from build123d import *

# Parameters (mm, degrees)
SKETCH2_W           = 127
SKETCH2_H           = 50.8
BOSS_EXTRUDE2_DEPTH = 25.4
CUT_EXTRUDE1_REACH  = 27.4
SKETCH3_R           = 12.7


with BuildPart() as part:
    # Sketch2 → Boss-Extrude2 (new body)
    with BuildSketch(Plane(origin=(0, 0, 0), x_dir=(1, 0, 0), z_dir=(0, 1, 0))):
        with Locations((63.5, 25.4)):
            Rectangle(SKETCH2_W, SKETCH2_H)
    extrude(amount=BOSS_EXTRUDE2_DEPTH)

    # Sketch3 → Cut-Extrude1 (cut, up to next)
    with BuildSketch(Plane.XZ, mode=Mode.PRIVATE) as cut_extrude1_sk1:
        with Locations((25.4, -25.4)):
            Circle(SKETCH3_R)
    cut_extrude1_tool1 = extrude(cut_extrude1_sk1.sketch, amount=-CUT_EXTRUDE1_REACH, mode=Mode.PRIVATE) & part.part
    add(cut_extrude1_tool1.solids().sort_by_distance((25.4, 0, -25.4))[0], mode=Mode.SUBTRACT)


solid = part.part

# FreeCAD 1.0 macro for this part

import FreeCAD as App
import Part
import Sketcher
Q = App.Units.Quantity


def add_polygon(sketch, points):
    """Adds a closed chain of lines whose ends are joined by coincident constraints."""
    first, n = sketch.GeometryCount, len(points)
    for a, b in zip(points, points[1:] + points[:1]):
        sketch.addGeometry(Part.LineSegment(App.Vector(*a, 0), App.Vector(*b, 0)), False)
    for i in range(n):
        sketch.addConstraint(Sketcher.Constraint("Coincident", first + i, 2, first + (i + 1) % n, 1))

doc = App.newDocument("Part")
body = doc.addObject("PartDesign::Body", "Body")

# Sketch on XZ plane
sketch1 = doc.addObject("Sketcher::SketchObject", "Sketch")
body.addObject(sketch1)
sketch1.AttachmentSupport = (doc.XZ_Plane, [""])
sketch1.MapMode = "FlatFace"
add_polygon(sketch1, [(0, -51), (0, 0), (127, 0), (127, -51)])  # lines 0-3
sketch1.addConstraint(Sketcher.Constraint("Vertical", 0))
sketch1.addConstraint(Sketcher.Constraint("Horizontal", 1))
sketch1.addConstraint(Sketcher.Constraint("Vertical", 2))
sketch1.addConstraint(Sketcher.Constraint("Horizontal", 3))
sketch1.addConstraint(Sketcher.Constraint("Coincident", 0, 2, -1, 1))
sketch1.addConstraint(Sketcher.Constraint("DistanceX", 1, 1, 1, 2, Q("5 in")))
sketch1.addConstraint(Sketcher.Constraint("DistanceY", 0, 1, 0, 2, Q("2 in")))
pad1 = doc.addObject("PartDesign::Pad", "Pad")
body.addObject(pad1)
pad1.Profile = sketch1
pad1.Length = Q("1 in")
pad1.Reversed = True

# Sketch on XZ plane
sketch2 = doc.addObject("Sketcher::SketchObject", "Sketch001")
body.addObject(sketch2)
sketch2.AttachmentSupport = (doc.XZ_Plane, [""])
sketch2.MapMode = "FlatFace"
sketch2.addGeometry(Part.Circle(App.Vector(25, -25, 0), App.Vector(0, 0, 1), 13), False)
sketch2.addConstraint(Sketcher.Constraint("Diameter", 0, Q("1 in")))
sketch2.addConstraint(Sketcher.Constraint("DistanceX", -1, 1, 0, 3, Q("1 in")))
sketch2.addConstraint(Sketcher.Constraint("DistanceY", 0, 3, -1, 1, Q("1 in")))
pocket1 = doc.addObject("PartDesign::Pocket", "Pocket")
body.addObject(pocket1)
pocket1.Profile = sketch2
pocket1.Type = "UpToFirst"

doc.recompute()
